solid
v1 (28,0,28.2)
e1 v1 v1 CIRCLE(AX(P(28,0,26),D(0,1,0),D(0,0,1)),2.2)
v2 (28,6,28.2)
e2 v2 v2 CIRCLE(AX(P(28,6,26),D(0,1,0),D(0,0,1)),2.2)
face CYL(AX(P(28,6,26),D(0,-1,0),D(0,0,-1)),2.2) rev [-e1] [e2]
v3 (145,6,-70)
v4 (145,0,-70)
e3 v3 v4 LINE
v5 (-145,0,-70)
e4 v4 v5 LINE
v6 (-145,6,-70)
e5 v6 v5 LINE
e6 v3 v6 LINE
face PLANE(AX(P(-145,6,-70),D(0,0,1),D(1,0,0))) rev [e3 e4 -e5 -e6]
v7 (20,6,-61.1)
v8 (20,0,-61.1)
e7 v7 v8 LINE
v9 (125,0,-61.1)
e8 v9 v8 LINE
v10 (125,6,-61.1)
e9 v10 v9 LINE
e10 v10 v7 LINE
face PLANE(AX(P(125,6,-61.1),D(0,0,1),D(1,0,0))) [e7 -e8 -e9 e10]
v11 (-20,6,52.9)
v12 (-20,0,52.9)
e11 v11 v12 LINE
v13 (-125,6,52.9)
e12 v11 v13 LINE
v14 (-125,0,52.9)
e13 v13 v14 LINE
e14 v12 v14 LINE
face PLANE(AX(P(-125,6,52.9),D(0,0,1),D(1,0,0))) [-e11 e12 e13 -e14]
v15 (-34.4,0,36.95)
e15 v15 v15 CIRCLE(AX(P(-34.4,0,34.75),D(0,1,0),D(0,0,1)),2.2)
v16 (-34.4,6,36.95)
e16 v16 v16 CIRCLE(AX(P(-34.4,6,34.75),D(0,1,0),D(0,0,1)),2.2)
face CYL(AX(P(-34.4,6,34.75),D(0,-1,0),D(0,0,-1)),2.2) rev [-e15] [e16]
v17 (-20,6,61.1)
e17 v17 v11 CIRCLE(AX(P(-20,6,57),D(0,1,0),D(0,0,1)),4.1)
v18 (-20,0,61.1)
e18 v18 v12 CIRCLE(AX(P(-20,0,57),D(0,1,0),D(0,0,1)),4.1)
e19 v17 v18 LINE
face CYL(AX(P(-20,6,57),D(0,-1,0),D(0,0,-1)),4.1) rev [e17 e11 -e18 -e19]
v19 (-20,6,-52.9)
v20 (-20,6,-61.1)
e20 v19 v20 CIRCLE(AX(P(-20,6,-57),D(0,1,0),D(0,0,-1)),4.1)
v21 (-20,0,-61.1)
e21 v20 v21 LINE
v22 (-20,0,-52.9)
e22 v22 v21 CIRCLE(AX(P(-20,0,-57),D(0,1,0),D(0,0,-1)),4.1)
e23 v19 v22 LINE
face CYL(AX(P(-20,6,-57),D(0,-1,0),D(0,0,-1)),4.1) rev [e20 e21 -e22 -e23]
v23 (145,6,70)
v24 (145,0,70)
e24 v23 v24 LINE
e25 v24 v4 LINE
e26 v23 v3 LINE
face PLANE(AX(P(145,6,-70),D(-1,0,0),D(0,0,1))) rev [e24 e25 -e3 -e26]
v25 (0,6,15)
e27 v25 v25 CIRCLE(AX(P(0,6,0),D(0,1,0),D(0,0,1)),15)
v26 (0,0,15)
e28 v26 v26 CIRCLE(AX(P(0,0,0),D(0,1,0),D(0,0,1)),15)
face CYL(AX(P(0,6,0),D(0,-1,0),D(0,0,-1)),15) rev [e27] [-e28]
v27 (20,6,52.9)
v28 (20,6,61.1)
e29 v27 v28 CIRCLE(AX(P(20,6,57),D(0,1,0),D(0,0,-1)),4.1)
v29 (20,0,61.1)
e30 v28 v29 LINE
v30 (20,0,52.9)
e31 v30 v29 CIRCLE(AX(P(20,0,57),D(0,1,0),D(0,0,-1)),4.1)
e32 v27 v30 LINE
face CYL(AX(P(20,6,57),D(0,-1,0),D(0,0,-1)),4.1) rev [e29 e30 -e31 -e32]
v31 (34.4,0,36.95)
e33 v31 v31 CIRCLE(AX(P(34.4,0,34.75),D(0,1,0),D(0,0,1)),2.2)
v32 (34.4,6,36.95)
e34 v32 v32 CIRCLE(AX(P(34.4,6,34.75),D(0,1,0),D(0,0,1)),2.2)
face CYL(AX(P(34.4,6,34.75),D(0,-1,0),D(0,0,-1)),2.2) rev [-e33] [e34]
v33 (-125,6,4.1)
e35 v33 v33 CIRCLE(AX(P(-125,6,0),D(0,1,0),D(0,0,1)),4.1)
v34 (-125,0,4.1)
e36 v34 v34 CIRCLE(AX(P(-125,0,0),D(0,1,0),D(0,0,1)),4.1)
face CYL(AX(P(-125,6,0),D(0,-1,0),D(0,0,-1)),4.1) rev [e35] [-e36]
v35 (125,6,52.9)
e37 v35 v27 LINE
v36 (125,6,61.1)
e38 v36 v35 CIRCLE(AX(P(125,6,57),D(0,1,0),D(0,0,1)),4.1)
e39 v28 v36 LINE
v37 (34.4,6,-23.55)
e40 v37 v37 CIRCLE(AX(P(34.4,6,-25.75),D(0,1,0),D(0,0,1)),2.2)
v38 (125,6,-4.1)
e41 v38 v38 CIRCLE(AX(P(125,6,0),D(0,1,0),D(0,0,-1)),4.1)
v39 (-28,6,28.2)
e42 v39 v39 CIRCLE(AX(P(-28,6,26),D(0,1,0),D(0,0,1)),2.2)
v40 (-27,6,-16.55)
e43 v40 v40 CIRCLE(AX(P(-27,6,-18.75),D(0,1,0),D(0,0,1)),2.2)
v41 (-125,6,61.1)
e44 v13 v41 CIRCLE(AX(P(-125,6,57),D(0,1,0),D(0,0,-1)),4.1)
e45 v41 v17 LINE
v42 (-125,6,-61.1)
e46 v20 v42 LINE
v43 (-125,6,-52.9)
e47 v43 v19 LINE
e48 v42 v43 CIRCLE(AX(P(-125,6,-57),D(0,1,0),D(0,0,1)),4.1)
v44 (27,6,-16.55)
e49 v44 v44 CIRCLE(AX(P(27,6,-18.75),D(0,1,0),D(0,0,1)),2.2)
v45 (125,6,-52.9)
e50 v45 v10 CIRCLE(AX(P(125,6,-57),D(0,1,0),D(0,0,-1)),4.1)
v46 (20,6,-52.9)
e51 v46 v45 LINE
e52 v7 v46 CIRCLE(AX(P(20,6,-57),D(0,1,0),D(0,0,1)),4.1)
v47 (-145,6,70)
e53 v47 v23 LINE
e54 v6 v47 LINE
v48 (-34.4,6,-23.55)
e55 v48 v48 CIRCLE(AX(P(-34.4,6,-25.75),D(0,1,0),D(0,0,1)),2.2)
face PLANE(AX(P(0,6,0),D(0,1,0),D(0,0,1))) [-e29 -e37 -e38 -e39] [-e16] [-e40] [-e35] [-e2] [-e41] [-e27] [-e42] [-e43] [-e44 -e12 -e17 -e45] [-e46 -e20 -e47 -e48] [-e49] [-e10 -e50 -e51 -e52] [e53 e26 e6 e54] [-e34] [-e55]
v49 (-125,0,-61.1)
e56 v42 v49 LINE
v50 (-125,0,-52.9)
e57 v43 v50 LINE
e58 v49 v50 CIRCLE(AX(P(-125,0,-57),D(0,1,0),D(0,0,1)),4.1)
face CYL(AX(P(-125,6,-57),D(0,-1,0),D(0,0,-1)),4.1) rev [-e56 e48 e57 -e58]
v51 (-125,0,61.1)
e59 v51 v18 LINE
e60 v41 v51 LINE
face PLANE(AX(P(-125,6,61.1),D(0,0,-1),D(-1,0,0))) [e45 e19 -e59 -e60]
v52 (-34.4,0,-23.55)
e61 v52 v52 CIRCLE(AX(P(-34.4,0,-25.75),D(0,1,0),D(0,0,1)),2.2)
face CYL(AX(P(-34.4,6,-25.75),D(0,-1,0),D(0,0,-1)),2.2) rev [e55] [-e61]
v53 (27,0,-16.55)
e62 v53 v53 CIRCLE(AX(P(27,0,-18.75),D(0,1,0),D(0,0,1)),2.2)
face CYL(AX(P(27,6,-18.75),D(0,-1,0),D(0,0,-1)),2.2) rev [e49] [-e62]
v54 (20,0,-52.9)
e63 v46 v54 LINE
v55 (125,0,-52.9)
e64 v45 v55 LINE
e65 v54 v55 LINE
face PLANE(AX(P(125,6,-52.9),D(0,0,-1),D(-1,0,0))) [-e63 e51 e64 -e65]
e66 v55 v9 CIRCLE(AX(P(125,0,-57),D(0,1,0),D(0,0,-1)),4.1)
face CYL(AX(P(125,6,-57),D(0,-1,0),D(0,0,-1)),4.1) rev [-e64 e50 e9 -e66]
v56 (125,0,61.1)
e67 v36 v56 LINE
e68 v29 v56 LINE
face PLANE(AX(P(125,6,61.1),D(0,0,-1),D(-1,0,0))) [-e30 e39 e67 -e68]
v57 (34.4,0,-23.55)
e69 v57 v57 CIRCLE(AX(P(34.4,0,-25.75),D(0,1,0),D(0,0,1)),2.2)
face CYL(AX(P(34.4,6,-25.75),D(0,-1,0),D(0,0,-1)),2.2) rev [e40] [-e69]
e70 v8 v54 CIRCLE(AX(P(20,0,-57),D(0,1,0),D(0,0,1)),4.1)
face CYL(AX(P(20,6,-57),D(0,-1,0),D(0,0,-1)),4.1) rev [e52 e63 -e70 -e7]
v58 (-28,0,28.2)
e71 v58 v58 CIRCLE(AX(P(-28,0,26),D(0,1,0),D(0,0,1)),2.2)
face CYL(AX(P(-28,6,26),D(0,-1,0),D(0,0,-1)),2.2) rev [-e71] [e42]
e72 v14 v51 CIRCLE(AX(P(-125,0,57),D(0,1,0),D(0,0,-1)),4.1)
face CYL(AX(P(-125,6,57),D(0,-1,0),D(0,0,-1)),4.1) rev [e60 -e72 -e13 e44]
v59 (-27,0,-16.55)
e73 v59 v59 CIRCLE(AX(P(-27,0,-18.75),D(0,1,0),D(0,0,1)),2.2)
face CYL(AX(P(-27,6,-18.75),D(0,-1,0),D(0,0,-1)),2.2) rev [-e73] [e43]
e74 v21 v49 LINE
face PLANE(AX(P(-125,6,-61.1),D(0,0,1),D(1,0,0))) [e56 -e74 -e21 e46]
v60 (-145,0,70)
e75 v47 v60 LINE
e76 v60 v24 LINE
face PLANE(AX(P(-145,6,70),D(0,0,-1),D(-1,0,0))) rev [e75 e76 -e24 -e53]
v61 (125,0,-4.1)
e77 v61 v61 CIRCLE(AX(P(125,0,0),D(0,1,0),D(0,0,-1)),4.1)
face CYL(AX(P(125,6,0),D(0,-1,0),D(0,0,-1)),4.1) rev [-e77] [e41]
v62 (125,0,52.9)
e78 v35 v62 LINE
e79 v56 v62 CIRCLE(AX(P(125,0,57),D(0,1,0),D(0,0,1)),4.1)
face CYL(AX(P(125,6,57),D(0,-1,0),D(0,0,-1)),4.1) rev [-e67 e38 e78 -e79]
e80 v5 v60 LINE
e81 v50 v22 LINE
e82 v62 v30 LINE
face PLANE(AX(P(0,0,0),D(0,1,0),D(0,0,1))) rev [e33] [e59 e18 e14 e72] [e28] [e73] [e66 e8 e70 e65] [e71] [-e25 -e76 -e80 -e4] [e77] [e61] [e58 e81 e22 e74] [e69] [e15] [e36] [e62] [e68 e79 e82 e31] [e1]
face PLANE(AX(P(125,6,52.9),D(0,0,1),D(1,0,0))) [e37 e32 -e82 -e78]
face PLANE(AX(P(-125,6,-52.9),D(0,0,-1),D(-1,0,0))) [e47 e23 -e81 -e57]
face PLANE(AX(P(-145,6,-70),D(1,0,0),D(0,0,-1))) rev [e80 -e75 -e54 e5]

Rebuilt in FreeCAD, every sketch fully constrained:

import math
import FreeCAD as App
import Part
import Sketcher
from FreeCAD import Vector


def add_polygon(sketch, points):
    """Adds a closed chain of lines whose ends are joined by coincident constraints."""
    first, n = sketch.GeometryCount, len(points)
    for a, b in zip(points, points[1:] + points[:1]):
        sketch.addGeometry(Part.LineSegment(App.Vector(*a, 0), App.Vector(*b, 0)), False)
    for i in range(n):
        sketch.addConstraint(Sketcher.Constraint("Coincident", first + i, 2, first + (i + 1) % n, 1))

doc = App.newDocument("Part")
body = doc.addObject("PartDesign::Body", "Body")

# Sketch on XZ plane
sketch1 = doc.addObject("Sketcher::SketchObject", "Sketch")
body.addObject(sketch1)
sketch1.AttachmentSupport = (doc.XZ_Plane, [""])
sketch1.MapMode = "FlatFace"
add_polygon(sketch1, [(-145, -70), (-145, 70), (145, 70), (145, -70)])  # lines 0-3
sketch1.addGeometry(Part.ArcOfCircle(Part.Circle(Vector(-125, 57, 0), Vector(0, 0, 1), 4.1), math.radians(90), math.radians(270)), False)  # 4
sketch1.addGeometry(Part.LineSegment(Vector(-125, 52.9, 0), Vector(-20, 52.9, 0)), False)  # 5
sketch1.addGeometry(Part.ArcOfCircle(Part.Circle(Vector(-20, 57, 0), Vector(0, 0, 1), 4.1), math.radians(-90), math.radians(90)), False)  # 6
sketch1.addGeometry(Part.LineSegment(Vector(-20, 61.1, 0), Vector(-125, 61.1, 0)), False)  # 7
sketch1.addGeometry(Part.Circle(Vector(-34.4, 34.8, 0), Vector(0, 0, 1), 2.2), False)  # 8
sketch1.addGeometry(Part.Circle(Vector(-28, 26, 0), Vector(0, 0, 1), 2.2), False)  # 9
sketch1.addGeometry(Part.Circle(Vector(34.4, 34.8, 0), Vector(0, 0, 1), 2.2), False)  # 10
sketch1.addGeometry(Part.ArcOfCircle(Part.Circle(Vector(125, 57, 0), Vector(0, 0, 1), 4.1), math.radians(-90), math.radians(90)), False)  # 11
sketch1.addGeometry(Part.LineSegment(Vector(125, 61.1, 0), Vector(20, 61.1, 0)), False)  # 12
sketch1.addGeometry(Part.ArcOfCircle(Part.Circle(Vector(20, 57, 0), Vector(0, 0, 1), 4.1), math.radians(90), math.radians(270)), False)  # 13
sketch1.addGeometry(Part.LineSegment(Vector(20, 52.9, 0), Vector(125, 52.9, 0)), False)  # 14
sketch1.addGeometry(Part.Circle(Vector(28, 26, 0), Vector(0, 0, 1), 2.2), False)  # 15
sketch1.addGeometry(Part.Circle(Vector(-125, 0, 0), Vector(0, 0, 1), 4.1), False)  # 16
sketch1.addGeometry(Part.Circle(Vector(-34.4, -25.8, 0), Vector(0, 0, 1), 2.2), False)  # 17
sketch1.addGeometry(Part.Circle(Vector(-27, -18.8, 0), Vector(0, 0, 1), 2.2), False)  # 18
sketch1.addGeometry(Part.ArcOfCircle(Part.Circle(Vector(-125, -57, 0), Vector(0, 0, 1), 4.1), math.radians(90), math.radians(270)), False)  # 19
sketch1.addGeometry(Part.LineSegment(Vector(-125, -61.1, 0), Vector(-20, -61.1, 0)), False)  # 20
sketch1.addGeometry(Part.ArcOfCircle(Part.Circle(Vector(-20, -57, 0), Vector(0, 0, 1), 4.1), math.radians(-90), math.radians(90)), False)  # 21
sketch1.addGeometry(Part.LineSegment(Vector(-20, -52.9, 0), Vector(-125, -52.9, 0)), False)  # 22
sketch1.addGeometry(Part.Circle(Vector(0, 0, 0), Vector(0, 0, 1), 15), False)  # 23
sketch1.addGeometry(Part.Circle(Vector(27, -18.8, 0), Vector(0, 0, 1), 2.2), False)  # 24
sketch1.addGeometry(Part.Circle(Vector(34.4, -25.8, 0), Vector(0, 0, 1), 2.2), False)  # 25
sketch1.addGeometry(Part.Circle(Vector(125, 0, 0), Vector(0, 0, 1), 4.1), False)  # 26
sketch1.addGeometry(Part.ArcOfCircle(Part.Circle(Vector(125, -57, 0), Vector(0, 0, 1), 4.1), math.radians(-90), math.radians(90)), False)  # 27
sketch1.addGeometry(Part.LineSegment(Vector(125, -52.9, 0), Vector(20, -52.9, 0)), False)  # 28
sketch1.addGeometry(Part.ArcOfCircle(Part.Circle(Vector(20, -57, 0), Vector(0, 0, 1), 4.1), math.radians(90), math.radians(270)), False)  # 29
sketch1.addGeometry(Part.LineSegment(Vector(20, -61.1, 0), Vector(125, -61.1, 0)), False)  # 30
sketch1.addConstraint(Sketcher.Constraint("Tangent", 4, 2, 5, 1))
sketch1.addConstraint(Sketcher.Constraint("Tangent", 5, 2, 6, 1))
sketch1.addConstraint(Sketcher.Constraint("Tangent", 6, 2, 7, 1))
sketch1.addConstraint(Sketcher.Constraint("Tangent", 7, 2, 4, 1))
sketch1.addConstraint(Sketcher.Constraint("Tangent", 11, 2, 12, 1))
sketch1.addConstraint(Sketcher.Constraint("Tangent", 12, 2, 13, 1))
sketch1.addConstraint(Sketcher.Constraint("Tangent", 13, 2, 14, 1))
sketch1.addConstraint(Sketcher.Constraint("Tangent", 14, 2, 11, 1))
sketch1.addConstraint(Sketcher.Constraint("Tangent", 19, 2, 20, 1))
sketch1.addConstraint(Sketcher.Constraint("Tangent", 20, 2, 21, 1))
sketch1.addConstraint(Sketcher.Constraint("Tangent", 21, 2, 22, 1))
sketch1.addConstraint(Sketcher.Constraint("Tangent", 22, 2, 19, 1))
sketch1.addConstraint(Sketcher.Constraint("Tangent", 27, 2, 28, 1))
sketch1.addConstraint(Sketcher.Constraint("Tangent", 28, 2, 29, 1))
sketch1.addConstraint(Sketcher.Constraint("Tangent", 29, 2, 30, 1))
sketch1.addConstraint(Sketcher.Constraint("Tangent", 30, 2, 27, 1))
sketch1.addConstraint(Sketcher.Constraint("Vertical", 0))
sketch1.addConstraint(Sketcher.Constraint("Horizontal", 1))
sketch1.addConstraint(Sketcher.Constraint("Vertical", 2))
sketch1.addConstraint(Sketcher.Constraint("Horizontal", 3))
sketch1.addConstraint(Sketcher.Constraint("Horizontal", 5))
sketch1.addConstraint(Sketcher.Constraint("Horizontal", 7))
sketch1.addConstraint(Sketcher.Constraint("Horizontal", 12))
sketch1.addConstraint(Sketcher.Constraint("Horizontal", 14))
sketch1.addConstraint(Sketcher.Constraint("Horizontal", 20))
sketch1.addConstraint(Sketcher.Constraint("Horizontal", 22))
sketch1.addConstraint(Sketcher.Constraint("Horizontal", 28))
sketch1.addConstraint(Sketcher.Constraint("Horizontal", 30))
sketch1.addConstraint(Sketcher.Constraint("Coincident", 23, 3, -1, 1))
sketch1.addConstraint(Sketcher.Constraint("Equal", 8, 9))
sketch1.addConstraint(Sketcher.Constraint("Equal", 9, 10))
sketch1.addConstraint(Sketcher.Constraint("Equal", 6, 11))
sketch1.addConstraint(Sketcher.Constraint("Equal", 10, 15))
sketch1.addConstraint(Sketcher.Constraint("Equal", 13, 16))
sketch1.addConstraint(Sketcher.Constraint("Equal", 15, 17))
sketch1.addConstraint(Sketcher.Constraint("Equal", 17, 18))
sketch1.addConstraint(Sketcher.Constraint("Equal", 16, 19))
sketch1.addConstraint(Sketcher.Constraint("Equal", 18, 24))
sketch1.addConstraint(Sketcher.Constraint("Equal", 24, 25))
sketch1.addConstraint(Sketcher.Constraint("Equal", 21, 26))
sketch1.addConstraint(Sketcher.Constraint("Equal", 26, 27))
sketch1.addConstraint(Sketcher.Constraint("Symmetric", 11, 3, 19, 3, -1, 1))
sketch1.addConstraint(Sketcher.Constraint("Symmetric", 16, 3, 26, 3, -1, 1))
sketch1.addConstraint(Sketcher.Constraint("Symmetric", 4, 3, 27, 3, -1, 1))
sketch1.addConstraint(Sketcher.Constraint("Symmetric", 0, 2, 2, 2, -1, 1))
sketch1.addConstraint(Sketcher.Constraint("Symmetric", 8, 3, 10, 3, -2))
sketch1.addConstraint(Sketcher.Constraint("Symmetric", 4, 3, 11, 3, -2))
sketch1.addConstraint(Sketcher.Constraint("Symmetric", 9, 3, 15, 3, -2))
sketch1.addConstraint(Sketcher.Constraint("Symmetric", 18, 3, 24, 3, -2))
sketch1.addConstraint(Sketcher.Constraint("Symmetric", 17, 3, 25, 3, -2))
sketch1.addConstraint(Sketcher.Constraint("PointOnObject", 16, 3, -1))
sketch1.addConstraint(Sketcher.Constraint("Vertical", 4, 3, 16, 3))
sketch1.addConstraint(Sketcher.Constraint("Vertical", 8, 3, 17, 3))
sketch1.addConstraint(Sketcher.Constraint("Vertical", 6, 3, 21, 3))
sketch1.addConstraint(Sketcher.Constraint("Vertical", 13, 3, 29, 3))
sketch1.addConstraint(Sketcher.Constraint("Equal", 7, 12))
sketch1.addConstraint(Sketcher.Constraint("Diameter", 23, 30.0))
sketch1.addConstraint(Sketcher.Constraint("Diameter", 8, 4.4))
sketch1.addConstraint(Sketcher.Constraint("Diameter", 16, 8.2))
sketch1.addConstraint(Sketcher.Constraint("DistanceX", 1, 1, 1, 2, 290.0))
sketch1.addConstraint(Sketcher.Constraint("DistanceX", 5, 1, 5, 2, 105.0))
sketch1.addConstraint(Sketcher.Constraint("DistanceY", 0, 1, 0, 2, 140.0))
sketch1.addConstraint(Sketcher.Constraint("DistanceX", 4, 3, -1, 1, 125.0))
sketch1.addConstraint(Sketcher.Constraint("DistanceY", -1, 1, 4, 3, 57.0))
sketch1.addConstraint(Sketcher.Constraint("DistanceX", 9, 3, -1, 1, 28.0))
sketch1.addConstraint(Sketcher.Constraint("DistanceY", -1, 1, 9, 3, 26.0))
sketch1.addConstraint(Sketcher.Constraint("DistanceX", 18, 3, -1, 1, 27.0))
sketch1.addConstraint(Sketcher.Constraint("DistanceY", 17, 3, 18, 3, 7.0))
sketch1.addConstraint(Sketcher.Constraint("DistanceX", 8, 3, -1, 1, 34.4))
sketch1.addConstraint(Sketcher.Constraint("DistanceY", 17, 3, 8, 3, 60.5))
sketch1.addConstraint(Sketcher.Constraint("DistanceY", -1, 1, 8, 3, 34.75))
pad1 = doc.addObject("PartDesign::Pad", "Pad")
body.addObject(pad1)
pad1.Profile = sketch1
pad1.Length = 6
pad1.Reversed = True

doc.recompute()
